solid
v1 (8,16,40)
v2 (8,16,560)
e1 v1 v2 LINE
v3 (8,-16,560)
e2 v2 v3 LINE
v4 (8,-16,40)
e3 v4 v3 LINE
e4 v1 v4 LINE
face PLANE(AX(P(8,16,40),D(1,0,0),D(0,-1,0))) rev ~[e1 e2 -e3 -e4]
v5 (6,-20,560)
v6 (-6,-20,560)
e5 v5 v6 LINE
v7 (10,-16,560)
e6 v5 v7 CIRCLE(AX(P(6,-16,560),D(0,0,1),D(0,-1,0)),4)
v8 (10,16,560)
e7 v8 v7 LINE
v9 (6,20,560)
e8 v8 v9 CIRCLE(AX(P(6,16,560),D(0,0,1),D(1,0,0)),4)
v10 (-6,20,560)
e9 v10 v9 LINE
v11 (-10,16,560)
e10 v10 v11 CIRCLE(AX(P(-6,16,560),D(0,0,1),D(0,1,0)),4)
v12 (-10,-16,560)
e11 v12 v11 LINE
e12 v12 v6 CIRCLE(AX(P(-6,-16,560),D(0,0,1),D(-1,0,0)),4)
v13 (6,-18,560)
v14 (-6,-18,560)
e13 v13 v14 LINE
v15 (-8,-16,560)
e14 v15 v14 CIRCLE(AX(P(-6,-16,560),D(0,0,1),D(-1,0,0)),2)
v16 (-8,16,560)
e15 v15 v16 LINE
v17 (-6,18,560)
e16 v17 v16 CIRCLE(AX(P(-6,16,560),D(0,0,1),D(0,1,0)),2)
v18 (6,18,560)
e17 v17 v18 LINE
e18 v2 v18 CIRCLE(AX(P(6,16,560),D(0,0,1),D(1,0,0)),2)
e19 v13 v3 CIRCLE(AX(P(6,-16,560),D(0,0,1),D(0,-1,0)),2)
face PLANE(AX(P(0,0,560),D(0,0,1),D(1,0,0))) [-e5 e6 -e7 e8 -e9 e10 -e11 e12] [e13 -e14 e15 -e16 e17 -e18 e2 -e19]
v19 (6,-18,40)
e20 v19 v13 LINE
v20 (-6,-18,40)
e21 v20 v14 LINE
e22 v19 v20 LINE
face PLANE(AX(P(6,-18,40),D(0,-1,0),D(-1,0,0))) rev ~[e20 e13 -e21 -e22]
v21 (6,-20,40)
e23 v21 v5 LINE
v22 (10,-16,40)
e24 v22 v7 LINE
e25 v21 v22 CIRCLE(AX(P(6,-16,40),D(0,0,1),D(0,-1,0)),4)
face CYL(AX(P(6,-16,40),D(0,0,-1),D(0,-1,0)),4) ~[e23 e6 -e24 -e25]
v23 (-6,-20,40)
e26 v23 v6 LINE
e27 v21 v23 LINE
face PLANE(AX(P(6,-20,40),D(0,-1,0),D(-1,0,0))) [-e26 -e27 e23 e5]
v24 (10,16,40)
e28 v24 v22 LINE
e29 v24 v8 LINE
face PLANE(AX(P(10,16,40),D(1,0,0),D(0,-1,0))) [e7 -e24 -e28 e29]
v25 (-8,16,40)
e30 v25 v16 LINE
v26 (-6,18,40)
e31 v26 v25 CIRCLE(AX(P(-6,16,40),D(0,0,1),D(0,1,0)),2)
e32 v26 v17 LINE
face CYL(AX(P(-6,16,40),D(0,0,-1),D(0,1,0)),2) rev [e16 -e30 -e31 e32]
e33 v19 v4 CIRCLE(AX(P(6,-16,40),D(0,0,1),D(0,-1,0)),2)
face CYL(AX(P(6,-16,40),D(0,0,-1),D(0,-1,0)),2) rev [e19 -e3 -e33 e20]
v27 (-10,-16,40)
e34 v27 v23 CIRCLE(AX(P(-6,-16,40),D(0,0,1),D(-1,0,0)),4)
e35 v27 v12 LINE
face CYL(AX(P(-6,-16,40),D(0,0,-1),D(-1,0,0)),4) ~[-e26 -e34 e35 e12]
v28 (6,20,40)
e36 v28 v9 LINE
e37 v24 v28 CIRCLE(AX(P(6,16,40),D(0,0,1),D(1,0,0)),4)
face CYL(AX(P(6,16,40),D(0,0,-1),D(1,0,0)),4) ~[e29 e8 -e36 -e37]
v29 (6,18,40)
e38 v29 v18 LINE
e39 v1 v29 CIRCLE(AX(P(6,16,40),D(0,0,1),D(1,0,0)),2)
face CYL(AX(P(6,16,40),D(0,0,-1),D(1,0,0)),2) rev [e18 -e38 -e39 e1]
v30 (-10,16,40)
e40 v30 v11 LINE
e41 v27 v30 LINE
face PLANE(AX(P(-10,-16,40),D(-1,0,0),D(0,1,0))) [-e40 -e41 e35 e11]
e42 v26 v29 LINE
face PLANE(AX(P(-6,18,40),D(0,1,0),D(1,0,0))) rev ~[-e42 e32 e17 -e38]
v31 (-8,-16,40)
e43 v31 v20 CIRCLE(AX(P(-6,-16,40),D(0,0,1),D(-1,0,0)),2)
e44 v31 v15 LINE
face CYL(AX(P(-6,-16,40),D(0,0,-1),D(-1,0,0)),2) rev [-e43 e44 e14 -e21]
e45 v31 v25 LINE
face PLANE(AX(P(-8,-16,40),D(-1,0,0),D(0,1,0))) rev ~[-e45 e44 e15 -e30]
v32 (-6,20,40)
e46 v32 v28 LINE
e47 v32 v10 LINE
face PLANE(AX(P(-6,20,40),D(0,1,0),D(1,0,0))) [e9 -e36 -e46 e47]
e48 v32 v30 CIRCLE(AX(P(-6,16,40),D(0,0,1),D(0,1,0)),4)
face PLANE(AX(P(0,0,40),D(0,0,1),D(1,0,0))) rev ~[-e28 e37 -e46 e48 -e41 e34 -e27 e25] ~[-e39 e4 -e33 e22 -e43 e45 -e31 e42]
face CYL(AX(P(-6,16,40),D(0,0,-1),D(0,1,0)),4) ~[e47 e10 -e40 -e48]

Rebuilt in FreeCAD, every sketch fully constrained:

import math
import FreeCAD as App
import Part
import Sketcher
from FreeCAD import Vector

doc = App.newDocument("Part")
body = doc.addObject("PartDesign::Body", "Body")

sketch1 = doc.addObject("Sketcher::SketchObject", "Sketch")
body.addObject(sketch1)
sketch1.AttachmentSupport = (doc.XY_Plane, [""])
sketch1.MapMode = "FlatFace"
sketch1.AttachmentOffset = App.Placement(Vector(0, 0, 40), App.Rotation())
sketch1.addGeometry([
    Part.LineSegment(Vector(-10, 16, 0), Vector(-10, -16, 0)),
    Part.ArcOfCircle(Part.Circle(Vector(-6, -16, 0), Vector(0, 0, 1), 4), math.radians(180), math.radians(270)),
    Part.LineSegment(Vector(-6, -20, 0), Vector(6, -20, 0)),
    Part.ArcOfCircle(Part.Circle(Vector(6, -16, 0), Vector(0, 0, 1), 4), math.radians(-90), math.radians(0)),
    Part.LineSegment(Vector(10, -16, 0), Vector(10, 16, 0)),
    Part.ArcOfCircle(Part.Circle(Vector(6, 16, 0), Vector(0, 0, 1), 4), math.radians(0), math.radians(90)),
    Part.LineSegment(Vector(6, 20, 0), Vector(-6, 20, 0)),
    Part.ArcOfCircle(Part.Circle(Vector(-6, 16, 0), Vector(0, 0, 1), 4), math.radians(90), math.radians(180)),
    Part.ArcOfCircle(Part.Circle(Vector(-6, 16, 0), Vector(0, 0, 1), 2), math.radians(90), math.radians(180)),
    Part.LineSegment(Vector(-6, 18, 0), Vector(6, 18, 0)),
    Part.ArcOfCircle(Part.Circle(Vector(6, 16, 0), Vector(0, 0, 1), 2), math.radians(0), math.radians(90)),
    Part.LineSegment(Vector(8, 16, 0), Vector(8, -16, 0)),
    Part.ArcOfCircle(Part.Circle(Vector(6, -16, 0), Vector(0, 0, 1), 2), math.radians(-90), math.radians(0)),
    Part.LineSegment(Vector(6, -18, 0), Vector(-6, -18, 0)),
    Part.ArcOfCircle(Part.Circle(Vector(-6, -16, 0), Vector(0, 0, 1), 2), math.radians(180), math.radians(270)),
    Part.LineSegment(Vector(-8, -16, 0), Vector(-8, 16, 0)),
], False)
sketch1.addConstraint([
    Sketcher.Constraint("Tangent", 0, 2, 1, 1),
    Sketcher.Constraint("Tangent", 1, 2, 2, 1),
    Sketcher.Constraint("Tangent", 2, 2, 3, 1),
    Sketcher.Constraint("Tangent", 3, 2, 4, 1),
    Sketcher.Constraint("Tangent", 4, 2, 5, 1),
    Sketcher.Constraint("Tangent", 5, 2, 6, 1),
    Sketcher.Constraint("Tangent", 6, 2, 7, 1),
    Sketcher.Constraint("Tangent", 7, 2, 0, 1),
    Sketcher.Constraint("Tangent", 8, 1, 9, 1),
    Sketcher.Constraint("Tangent", 9, 2, 10, 2),
    Sketcher.Constraint("Tangent", 10, 1, 11, 1),
    Sketcher.Constraint("Tangent", 11, 2, 12, 2),
    Sketcher.Constraint("Tangent", 12, 1, 13, 1),
    Sketcher.Constraint("Tangent", 13, 2, 14, 2),
    Sketcher.Constraint("Tangent", 14, 1, 15, 1),
    Sketcher.Constraint("Tangent", 15, 2, 8, 2),
    Sketcher.Constraint("Vertical", 0),
    Sketcher.Constraint("Horizontal", 2),
    Sketcher.Constraint("Vertical", 4),
    Sketcher.Constraint("Horizontal", 6),
    Sketcher.Constraint("Horizontal", 9),
    Sketcher.Constraint("Vertical", 11),
    Sketcher.Constraint("Horizontal", 13),
    Sketcher.Constraint("Vertical", 15),
    Sketcher.Constraint("Coincident", 8, 3, 7, 3),
    Sketcher.Constraint("Coincident", 10, 3, 5, 3),
    Sketcher.Constraint("Coincident", 12, 3, 3, 3),
    Sketcher.Constraint("Equal", 1, 3),
    Sketcher.Constraint("Equal", 3, 5),
    Sketcher.Constraint("Equal", 5, 7),
    Sketcher.Constraint("Equal", 12, 14),
    Sketcher.Constraint("Symmetric", 1, 3, 5, 3, -1, 1),
    Sketcher.Constraint("Radius", 1, 4.0),
    Sketcher.Constraint("Radius", 8, 2.0),
    Sketcher.Constraint("DistanceX", 0, 2, -1, 1, 10.0),
    Sketcher.Constraint("DistanceY", 1, 2, -1, 1, 20.0),
])
pad1 = doc.addObject("PartDesign::Pad", "Pad")
body.addObject(pad1)
pad1.Profile = sketch1
pad1.Length = 520

doc.recompute()
